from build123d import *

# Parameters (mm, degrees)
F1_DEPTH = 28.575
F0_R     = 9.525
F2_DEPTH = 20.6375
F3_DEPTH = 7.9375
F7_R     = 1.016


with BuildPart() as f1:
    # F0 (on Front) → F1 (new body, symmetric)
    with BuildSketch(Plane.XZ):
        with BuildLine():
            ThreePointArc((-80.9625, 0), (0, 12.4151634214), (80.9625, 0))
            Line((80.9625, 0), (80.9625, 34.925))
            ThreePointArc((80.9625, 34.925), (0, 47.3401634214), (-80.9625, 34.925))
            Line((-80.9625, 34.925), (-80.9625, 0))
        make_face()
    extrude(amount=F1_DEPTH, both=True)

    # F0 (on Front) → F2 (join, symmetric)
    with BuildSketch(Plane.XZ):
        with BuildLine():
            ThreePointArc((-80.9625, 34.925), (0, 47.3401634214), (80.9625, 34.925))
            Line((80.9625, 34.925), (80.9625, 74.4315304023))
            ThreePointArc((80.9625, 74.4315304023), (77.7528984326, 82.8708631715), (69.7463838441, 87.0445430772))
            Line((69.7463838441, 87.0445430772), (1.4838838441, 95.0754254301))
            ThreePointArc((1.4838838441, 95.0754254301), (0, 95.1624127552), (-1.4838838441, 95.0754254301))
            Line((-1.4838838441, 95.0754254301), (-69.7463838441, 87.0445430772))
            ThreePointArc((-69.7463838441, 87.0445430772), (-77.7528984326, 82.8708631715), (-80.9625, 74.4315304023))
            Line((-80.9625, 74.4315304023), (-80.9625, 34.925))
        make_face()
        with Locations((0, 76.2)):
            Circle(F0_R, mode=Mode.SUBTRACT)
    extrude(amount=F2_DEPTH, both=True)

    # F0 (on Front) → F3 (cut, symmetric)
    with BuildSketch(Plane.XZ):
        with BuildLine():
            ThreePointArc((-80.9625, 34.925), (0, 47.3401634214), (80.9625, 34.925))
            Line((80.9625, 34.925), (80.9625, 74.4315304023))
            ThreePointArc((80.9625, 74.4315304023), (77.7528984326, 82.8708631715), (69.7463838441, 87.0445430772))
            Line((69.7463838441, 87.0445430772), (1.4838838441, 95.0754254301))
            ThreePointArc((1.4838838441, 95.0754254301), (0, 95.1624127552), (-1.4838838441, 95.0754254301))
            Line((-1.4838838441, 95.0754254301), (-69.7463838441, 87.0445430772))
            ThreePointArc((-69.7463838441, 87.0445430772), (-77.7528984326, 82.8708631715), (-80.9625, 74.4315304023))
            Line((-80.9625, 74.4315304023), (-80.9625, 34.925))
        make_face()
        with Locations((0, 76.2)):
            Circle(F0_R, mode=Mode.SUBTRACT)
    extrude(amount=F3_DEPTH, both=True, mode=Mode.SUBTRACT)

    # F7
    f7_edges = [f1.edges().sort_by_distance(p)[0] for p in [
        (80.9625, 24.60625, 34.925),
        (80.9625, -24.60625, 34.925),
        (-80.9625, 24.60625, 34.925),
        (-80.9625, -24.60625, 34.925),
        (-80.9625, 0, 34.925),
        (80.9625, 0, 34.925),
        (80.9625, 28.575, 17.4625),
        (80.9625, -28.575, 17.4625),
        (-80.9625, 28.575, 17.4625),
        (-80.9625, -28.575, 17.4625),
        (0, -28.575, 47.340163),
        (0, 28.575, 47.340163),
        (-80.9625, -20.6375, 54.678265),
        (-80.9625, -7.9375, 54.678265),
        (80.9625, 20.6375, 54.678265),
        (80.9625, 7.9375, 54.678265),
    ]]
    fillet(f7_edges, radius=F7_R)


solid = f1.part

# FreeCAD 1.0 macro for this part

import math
import FreeCAD as App
import Part
import Sketcher
from FreeCAD import Vector
Q = App.Units.Quantity


def edges_at(feature, points):
    """Names of the edges that pass closest to the given points."""
    edges = feature.Shape.Edges
    near = lambda p: min(range(len(edges)), key=lambda i: edges[i].distToShape(Part.Vertex(*p))[0])
    return sorted({f"Edge{near(p) + 1}" for p in points})

doc = App.newDocument("Part")
params = doc.addObject("Spreadsheet::Sheet", "Params")
for row, (alias, value) in enumerate([
    ("sketch1_height", "1.375 in"),
    ("pad1_length", "2.25 in"),
    ("sketch2_radius", "0.5 in"),
    ("sketch2_diameter", "0.75 in"),
    ("pad2_length", "1.625 in"),
    ("sketch3_radius", "0.5 in"),
    ("sketch3_diameter", "0.75 in"),
    ("pocket1_length", "0.625 in"),
    ("fillet_radius", "0.04 in"),
], start=1):
    params.set(f"A{row}", alias)
    params.set(f"B{row}", "=" + value)
    params.setAlias(f"B{row}", alias)

body = doc.addObject("PartDesign::Body", "Body")

# Sketch on XZ plane
sketch1 = doc.addObject("Sketcher::SketchObject", "Sketch")
body.addObject(sketch1)
sketch1.AttachmentSupport = (doc.XZ_Plane, [""])
sketch1.MapMode = "FlatFace"
sketch1.addGeometry(Part.ArcOfCircle(Part.Circle(Vector(0, -257.781147, 0), Vector(0, 0, 1), 270.19631), math.radians(72.563823), math.radians(107.436177)), False)
sketch1.addGeometry(Part.LineSegment(Vector(80.9625, 0, 0), Vector(80.9625, 34.925, 0)), False)
sketch1.addGeometry(Part.ArcOfCircle(Part.Circle(Vector(0, -222.856147, 0), Vector(0, 0, 1), 270.19631), math.radians(72.563823), math.radians(107.436177)), False)
sketch1.addGeometry(Part.LineSegment(Vector(-80.9625, 34.925, 0), Vector(-80.9625, 0, 0)), False)
sketch1.addConstraint(Sketcher.Constraint("Coincident", 0, 1, 1, 1))
sketch1.addConstraint(Sketcher.Constraint("Coincident", 1, 2, 2, 1))
sketch1.addConstraint(Sketcher.Constraint("Coincident", 2, 2, 3, 1))
sketch1.addConstraint(Sketcher.Constraint("Coincident", 3, 2, 0, 2))
sketch1.addConstraint(Sketcher.Constraint("Vertical", 1))
sketch1.addConstraint(Sketcher.Constraint("Vertical", 3))
sketch1.addConstraint(Sketcher.Constraint("Equal", 0, 2))
sketch1.addConstraint(Sketcher.Constraint("Symmetric", 0, 1, 3, 2, -1, 1))
sketch1.addConstraint(Sketcher.Constraint("PointOnObject", 0, 3, -2))
sketch1.addConstraint(Sketcher.Constraint("PointOnObject", 2, 3, -2))
sketch1.addConstraint(Sketcher.Constraint("DistanceY", 1, 1, 1, 2, Q("1.375 in")))
sketch1.addConstraint(Sketcher.Constraint("DistanceX", -1, 1, 1, 2, Q("3.1875 in")))
sketch1.addConstraint(Sketcher.Constraint("Radius", 0, Q("270.19631 mm")))
sketch1.setExpression("Constraints[10]", "Params.sketch1_height")
pad1 = doc.addObject("PartDesign::Pad", "Pad")
body.addObject(pad1)
pad1.Profile = sketch1
pad1.setExpression("Length", "Params.pad1_length")
pad1.Midplane = True

# Sketch on XZ plane
sketch2 = doc.addObject("Sketcher::SketchObject", "Sketch001")
body.addObject(sketch2)
sketch2.AttachmentSupport = (doc.XZ_Plane, [""])
sketch2.MapMode = "FlatFace"
sketch2.addGeometry(Part.ArcOfCircle(Part.Circle(Vector(0, -222.856147, 0), Vector(0, 0, 1), 270.19631), math.radians(72.563823), math.radians(107.436177)), False)
sketch2.addGeometry(Part.LineSegment(Vector(80.9625, 34.925, 0), Vector(80.9625, 74.43153, 0)), False)
sketch2.addGeometry(Part.ArcOfCircle(Part.Circle(Vector(68.2625, 74.43153, 0), Vector(0, 0, 1), 12.7), math.radians(0), math.radians(83.290163)), False)
sketch2.addGeometry(Part.LineSegment(Vector(69.746384, 87.044543, 0), Vector(1.483884, 95.075425, 0)), False)
sketch2.addGeometry(Part.ArcOfCircle(Part.Circle(Vector(0, 82.462413, 0), Vector(0, 0, 1), 12.7), math.radians(83.290163), math.radians(96.709837)), False)
sketch2.addGeometry(Part.LineSegment(Vector(-1.483884, 95.075425, 0), Vector(-69.746384, 87.044543, 0)), False)
sketch2.addGeometry(Part.ArcOfCircle(Part.Circle(Vector(-68.2625, 74.43153, 0), Vector(0, 0, 1), 12.7), math.radians(96.709837), math.radians(180)), False)
sketch2.addGeometry(Part.LineSegment(Vector(-80.9625, 74.43153, 0), Vector(-80.9625, 34.925, 0)), False)
sketch2.addGeometry(Part.Circle(Vector(0, 76.2, 0), Vector(0, 0, 1), 9.525), False)
sketch2.addConstraint(Sketcher.Constraint("Coincident", 0, 1, 1, 1))
sketch2.addConstraint(Sketcher.Constraint("Tangent", 1, 2, 2, 1))
sketch2.addConstraint(Sketcher.Constraint("Tangent", 2, 2, 3, 1))
sketch2.addConstraint(Sketcher.Constraint("Tangent", 3, 2, 4, 1))
sketch2.addConstraint(Sketcher.Constraint("Tangent", 4, 2, 5, 1))
sketch2.addConstraint(Sketcher.Constraint("Tangent", 5, 2, 6, 1))
sketch2.addConstraint(Sketcher.Constraint("Tangent", 6, 2, 7, 1))
sketch2.addConstraint(Sketcher.Constraint("Coincident", 7, 2, 0, 2))
sketch2.addConstraint(Sketcher.Constraint("Vertical", 1))
sketch2.addConstraint(Sketcher.Constraint("Vertical", 7))
sketch2.addConstraint(Sketcher.Constraint("Equal", 2, 4))
sketch2.addConstraint(Sketcher.Constraint("Equal", 4, 6))
sketch2.addConstraint(Sketcher.Constraint("Symmetric", 2, 3, 6, 3, -2))
sketch2.addConstraint(Sketcher.Constraint("PointOnObject", 0, 3, -2))
sketch2.addConstraint(Sketcher.Constraint("PointOnObject", 4, 3, -2))
sketch2.addConstraint(Sketcher.Constraint("PointOnObject", 8, 3, -2))
sketch2.addConstraint(Sketcher.Constraint("Radius", 2, Q("0.5 in")))
sketch2.addConstraint(Sketcher.Constraint("Diameter", 8, Q("0.75 in")))
sketch2.addConstraint(Sketcher.Constraint("DistanceY", -1, 1, 8, 3, Q("3 in")))
sketch2.addConstraint(Sketcher.Constraint("DistanceX", -1, 1, 2, 3, Q("2.6875 in")))
sketch2.addConstraint(Sketcher.Constraint("DistanceY", -1, 1, 0, 1, Q("1.375 in")))
sketch2.addConstraint(Sketcher.Constraint("Radius", 0, Q("270.19631 mm")))
sketch2.addConstraint(Sketcher.Constraint("DistanceY", 1, 1, 1, 2, Q("39.50653 mm")))
sketch2.addConstraint(Sketcher.Constraint("Distance", 3, Q("68.733281 mm")))
sketch2.setExpression("Constraints[16]", "Params.sketch2_radius")
sketch2.setExpression("Constraints[17]", "Params.sketch2_diameter")
pad2 = doc.addObject("PartDesign::Pad", "Pad001")
body.addObject(pad2)
pad2.Profile = sketch2
pad2.setExpression("Length", "Params.pad2_length")
pad2.Midplane = True

# Sketch on XZ plane
sketch3 = doc.addObject("Sketcher::SketchObject", "Sketch002")
body.addObject(sketch3)
sketch3.AttachmentSupport = (doc.XZ_Plane, [""])
sketch3.MapMode = "FlatFace"
sketch3.addGeometry(Part.ArcOfCircle(Part.Circle(Vector(0, -222.856147, 0), Vector(0, 0, 1), 270.19631), math.radians(72.563823), math.radians(107.436177)), False)
sketch3.addGeometry(Part.LineSegment(Vector(80.9625, 34.925, 0), Vector(80.9625, 74.43153, 0)), False)
sketch3.addGeometry(Part.ArcOfCircle(Part.Circle(Vector(68.2625, 74.43153, 0), Vector(0, 0, 1), 12.7), math.radians(0), math.radians(83.290163)), False)
sketch3.addGeometry(Part.LineSegment(Vector(69.746384, 87.044543, 0), Vector(1.483884, 95.075425, 0)), False)
sketch3.addGeometry(Part.ArcOfCircle(Part.Circle(Vector(0, 82.462413, 0), Vector(0, 0, 1), 12.7), math.radians(83.290163), math.radians(96.709837)), False)
sketch3.addGeometry(Part.LineSegment(Vector(-1.483884, 95.075425, 0), Vector(-69.746384, 87.044543, 0)), False)
sketch3.addGeometry(Part.ArcOfCircle(Part.Circle(Vector(-68.2625, 74.43153, 0), Vector(0, 0, 1), 12.7), math.radians(96.709837), math.radians(180)), False)
sketch3.addGeometry(Part.LineSegment(Vector(-80.9625, 74.43153, 0), Vector(-80.9625, 34.925, 0)), False)
sketch3.addGeometry(Part.Circle(Vector(0, 76.2, 0), Vector(0, 0, 1), 9.525), False)
sketch3.addConstraint(Sketcher.Constraint("Coincident", 0, 1, 1, 1))
sketch3.addConstraint(Sketcher.Constraint("Tangent", 1, 2, 2, 1))
sketch3.addConstraint(Sketcher.Constraint("Tangent", 2, 2, 3, 1))
sketch3.addConstraint(Sketcher.Constraint("Tangent", 3, 2, 4, 1))
sketch3.addConstraint(Sketcher.Constraint("Tangent", 4, 2, 5, 1))
sketch3.addConstraint(Sketcher.Constraint("Tangent", 5, 2, 6, 1))
sketch3.addConstraint(Sketcher.Constraint("Tangent", 6, 2, 7, 1))
sketch3.addConstraint(Sketcher.Constraint("Coincident", 7, 2, 0, 2))
sketch3.addConstraint(Sketcher.Constraint("Vertical", 1))
sketch3.addConstraint(Sketcher.Constraint("Vertical", 7))
sketch3.addConstraint(Sketcher.Constraint("Equal", 2, 4))
sketch3.addConstraint(Sketcher.Constraint("Equal", 4, 6))
sketch3.addConstraint(Sketcher.Constraint("Symmetric", 2, 3, 6, 3, -2))
sketch3.addConstraint(Sketcher.Constraint("PointOnObject", 0, 3, -2))
sketch3.addConstraint(Sketcher.Constraint("PointOnObject", 4, 3, -2))
sketch3.addConstraint(Sketcher.Constraint("PointOnObject", 8, 3, -2))
sketch3.addConstraint(Sketcher.Constraint("Radius", 2, Q("0.5 in")))
sketch3.addConstraint(Sketcher.Constraint("Diameter", 8, Q("0.75 in")))
sketch3.addConstraint(Sketcher.Constraint("DistanceY", -1, 1, 8, 3, Q("3 in")))
sketch3.addConstraint(Sketcher.Constraint("DistanceX", -1, 1, 2, 3, Q("2.6875 in")))
sketch3.addConstraint(Sketcher.Constraint("DistanceY", -1, 1, 0, 1, Q("1.375 in")))
sketch3.addConstraint(Sketcher.Constraint("Radius", 0, Q("270.19631 mm")))
sketch3.addConstraint(Sketcher.Constraint("DistanceY", 1, 1, 1, 2, Q("39.50653 mm")))
sketch3.addConstraint(Sketcher.Constraint("Distance", 3, Q("68.733281 mm")))
sketch3.setExpression("Constraints[16]", "Params.sketch3_radius")
sketch3.setExpression("Constraints[17]", "Params.sketch3_diameter")
pocket1 = doc.addObject("PartDesign::Pocket", "Pocket")
body.addObject(pocket1)
pocket1.Profile = sketch3
pocket1.setExpression("Length", "Params.pocket1_length")
pocket1.Midplane = True
doc.recompute()

fillet = doc.addObject("PartDesign::Fillet", "Fillet")
body.addObject(fillet)
fillet.Base = (pocket1, edges_at(pocket1, [
    (80.963, 24.606, 34.925),
    (80.963, -24.606, 34.925),
    (-80.963, 24.606, 34.925),
    (-80.963, -24.606, 34.925),
    (-80.963, 0, 34.925),
    (80.963, 0, 34.925),
    (80.963, 28.575, 17.462),
    (80.963, -28.575, 17.462),
    (-80.963, 28.575, 17.462),
    (-80.963, -28.575, 17.462),
    (0, -28.575, 47.34),
    (0, 28.575, 47.34),
    (-80.963, -20.637, 54.678),
    (-80.963, -7.938, 54.678),
    (80.963, 20.637, 54.678),
    (80.963, 7.938, 54.678),
]))
fillet.setExpression("Radius", "Params.fillet_radius")

doc.recompute()
